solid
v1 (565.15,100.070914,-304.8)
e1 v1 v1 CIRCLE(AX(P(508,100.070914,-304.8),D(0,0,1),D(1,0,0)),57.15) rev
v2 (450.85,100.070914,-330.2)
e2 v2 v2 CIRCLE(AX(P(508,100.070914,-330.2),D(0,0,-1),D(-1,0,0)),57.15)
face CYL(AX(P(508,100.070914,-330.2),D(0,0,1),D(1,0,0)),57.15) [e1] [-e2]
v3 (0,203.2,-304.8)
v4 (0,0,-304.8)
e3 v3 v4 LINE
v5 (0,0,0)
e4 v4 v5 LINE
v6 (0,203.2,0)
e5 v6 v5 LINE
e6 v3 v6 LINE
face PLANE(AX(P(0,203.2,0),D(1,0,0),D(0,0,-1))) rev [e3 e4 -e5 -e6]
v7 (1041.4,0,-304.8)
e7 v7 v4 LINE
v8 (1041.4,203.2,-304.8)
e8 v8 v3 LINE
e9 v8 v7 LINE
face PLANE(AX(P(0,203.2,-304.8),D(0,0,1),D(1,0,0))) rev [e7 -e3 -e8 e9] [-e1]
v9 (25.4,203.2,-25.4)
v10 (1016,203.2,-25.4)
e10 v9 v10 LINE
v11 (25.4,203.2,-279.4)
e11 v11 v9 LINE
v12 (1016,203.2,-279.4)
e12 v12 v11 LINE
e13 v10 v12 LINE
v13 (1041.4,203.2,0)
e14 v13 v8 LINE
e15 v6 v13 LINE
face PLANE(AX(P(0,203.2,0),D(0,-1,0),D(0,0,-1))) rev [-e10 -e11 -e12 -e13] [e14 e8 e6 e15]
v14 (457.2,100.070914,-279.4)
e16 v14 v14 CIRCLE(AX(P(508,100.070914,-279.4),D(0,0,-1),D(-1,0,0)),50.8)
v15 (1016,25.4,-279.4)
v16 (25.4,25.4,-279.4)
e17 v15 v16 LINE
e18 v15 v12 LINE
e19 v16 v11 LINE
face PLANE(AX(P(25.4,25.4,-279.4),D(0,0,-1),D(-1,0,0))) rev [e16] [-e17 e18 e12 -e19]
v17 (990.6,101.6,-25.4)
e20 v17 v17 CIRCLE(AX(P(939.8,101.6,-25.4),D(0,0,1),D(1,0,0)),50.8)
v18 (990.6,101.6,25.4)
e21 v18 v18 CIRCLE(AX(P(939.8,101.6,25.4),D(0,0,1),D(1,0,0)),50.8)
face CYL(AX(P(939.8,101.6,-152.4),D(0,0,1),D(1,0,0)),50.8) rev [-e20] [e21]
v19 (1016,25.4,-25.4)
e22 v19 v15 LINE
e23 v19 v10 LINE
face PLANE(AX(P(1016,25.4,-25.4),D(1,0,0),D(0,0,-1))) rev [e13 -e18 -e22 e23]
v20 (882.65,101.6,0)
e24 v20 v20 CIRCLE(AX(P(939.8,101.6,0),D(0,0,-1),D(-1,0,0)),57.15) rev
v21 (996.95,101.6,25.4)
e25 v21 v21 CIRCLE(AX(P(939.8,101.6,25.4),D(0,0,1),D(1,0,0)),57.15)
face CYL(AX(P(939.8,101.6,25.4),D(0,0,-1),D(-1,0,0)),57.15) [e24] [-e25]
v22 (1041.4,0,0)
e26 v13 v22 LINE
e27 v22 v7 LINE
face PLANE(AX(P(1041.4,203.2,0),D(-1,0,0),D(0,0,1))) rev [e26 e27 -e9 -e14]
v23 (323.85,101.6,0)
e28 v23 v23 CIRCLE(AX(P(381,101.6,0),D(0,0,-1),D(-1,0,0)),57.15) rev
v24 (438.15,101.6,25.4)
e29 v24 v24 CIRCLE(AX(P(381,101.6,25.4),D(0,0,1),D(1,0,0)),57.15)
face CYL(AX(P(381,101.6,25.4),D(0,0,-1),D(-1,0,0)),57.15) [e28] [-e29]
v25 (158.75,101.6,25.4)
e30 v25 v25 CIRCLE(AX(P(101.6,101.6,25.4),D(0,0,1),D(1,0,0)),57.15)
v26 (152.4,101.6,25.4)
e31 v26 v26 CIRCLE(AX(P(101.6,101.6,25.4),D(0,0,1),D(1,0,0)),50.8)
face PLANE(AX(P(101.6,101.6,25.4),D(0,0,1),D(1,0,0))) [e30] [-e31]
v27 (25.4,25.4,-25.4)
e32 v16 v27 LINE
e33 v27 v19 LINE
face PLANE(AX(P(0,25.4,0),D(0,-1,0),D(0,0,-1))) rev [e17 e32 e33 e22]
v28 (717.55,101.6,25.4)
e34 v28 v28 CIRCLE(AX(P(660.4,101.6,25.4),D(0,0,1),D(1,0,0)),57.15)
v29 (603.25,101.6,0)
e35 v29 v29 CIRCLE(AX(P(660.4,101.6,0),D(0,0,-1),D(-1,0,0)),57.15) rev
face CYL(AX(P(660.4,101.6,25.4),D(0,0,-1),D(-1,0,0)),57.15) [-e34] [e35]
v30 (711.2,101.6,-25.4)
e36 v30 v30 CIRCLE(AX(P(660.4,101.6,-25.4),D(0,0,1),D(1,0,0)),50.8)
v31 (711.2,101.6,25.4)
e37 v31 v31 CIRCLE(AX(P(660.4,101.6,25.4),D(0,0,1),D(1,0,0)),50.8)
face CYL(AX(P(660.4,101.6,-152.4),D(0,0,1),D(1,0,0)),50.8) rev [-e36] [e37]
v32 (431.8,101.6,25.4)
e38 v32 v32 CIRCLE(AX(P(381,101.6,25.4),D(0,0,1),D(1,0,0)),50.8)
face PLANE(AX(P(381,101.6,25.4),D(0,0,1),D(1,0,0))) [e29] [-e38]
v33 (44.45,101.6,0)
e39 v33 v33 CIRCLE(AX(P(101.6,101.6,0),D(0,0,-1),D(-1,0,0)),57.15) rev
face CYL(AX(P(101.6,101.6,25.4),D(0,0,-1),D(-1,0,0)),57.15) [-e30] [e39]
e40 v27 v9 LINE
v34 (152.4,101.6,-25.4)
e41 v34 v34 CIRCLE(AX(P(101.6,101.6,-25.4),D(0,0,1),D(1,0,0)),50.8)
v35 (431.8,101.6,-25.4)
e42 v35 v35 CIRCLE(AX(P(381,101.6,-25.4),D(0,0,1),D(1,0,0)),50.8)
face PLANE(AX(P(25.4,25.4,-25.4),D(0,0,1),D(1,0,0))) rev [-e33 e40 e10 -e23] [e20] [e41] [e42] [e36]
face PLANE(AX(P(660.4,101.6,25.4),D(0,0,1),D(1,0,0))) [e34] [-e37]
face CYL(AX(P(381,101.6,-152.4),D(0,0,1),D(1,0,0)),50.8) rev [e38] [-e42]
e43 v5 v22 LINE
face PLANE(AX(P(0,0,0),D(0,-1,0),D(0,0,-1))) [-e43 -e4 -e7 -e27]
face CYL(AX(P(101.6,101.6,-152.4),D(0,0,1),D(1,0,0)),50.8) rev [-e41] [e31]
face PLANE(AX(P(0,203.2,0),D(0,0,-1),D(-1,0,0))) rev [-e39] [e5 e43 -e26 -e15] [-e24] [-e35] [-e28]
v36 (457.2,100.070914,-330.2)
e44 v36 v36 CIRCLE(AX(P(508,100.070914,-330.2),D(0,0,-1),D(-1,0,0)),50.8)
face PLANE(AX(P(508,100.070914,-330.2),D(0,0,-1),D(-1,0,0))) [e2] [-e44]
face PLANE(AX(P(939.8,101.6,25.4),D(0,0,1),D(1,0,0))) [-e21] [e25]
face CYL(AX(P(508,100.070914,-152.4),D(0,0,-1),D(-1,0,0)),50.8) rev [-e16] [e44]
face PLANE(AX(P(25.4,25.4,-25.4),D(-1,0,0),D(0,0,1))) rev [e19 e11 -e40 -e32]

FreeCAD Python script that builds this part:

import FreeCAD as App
import Part
import Sketcher
Q = App.Units.Quantity


def add_polygon(sketch, points):
    """Adds a closed chain of lines whose ends are joined by coincident constraints."""
    first, n = sketch.GeometryCount, len(points)
    for a, b in zip(points, points[1:] + points[:1]):
        sketch.addGeometry(Part.LineSegment(App.Vector(*a, 0), App.Vector(*b, 0)), False)
    for i in range(n):
        sketch.addConstraint(Sketcher.Constraint("Coincident", first + i, 2, first + (i + 1) % n, 1))

doc = App.newDocument("Part")
body = doc.addObject("PartDesign::Body", "Body")

# Sketch on XZ plane
sketch1 = body.newObject("Sketcher::SketchObject", "Sketch")
sketch1.AttachmentSupport = (doc.getObject("XZ_Plane"), [""])
sketch1.MapMode = "FlatFace"
add_polygon(sketch1, [(0, -305), (0, 0), (1041, 0), (1041, -305)])  # lines 0-3
sketch1.addConstraint(Sketcher.Constraint("Vertical", 0))
sketch1.addConstraint(Sketcher.Constraint("Horizontal", 1))
sketch1.addConstraint(Sketcher.Constraint("Vertical", 2))
sketch1.addConstraint(Sketcher.Constraint("Horizontal", 3))
sketch1.addConstraint(Sketcher.Constraint("Coincident", 0, 2, -1, 1))
sketch1.addConstraint(Sketcher.Constraint("DistanceX", 1, 1, 1, 2, Q("41 in")))
sketch1.addConstraint(Sketcher.Constraint("DistanceY", 0, 1, 0, 2, Q("12 in")))
pad1 = body.newObject("PartDesign::Pad", "Pad")
pad1.Profile = sketch1
pad1.Length = Q("8 in")
pad1.Reversed = True

# Sketch on XY plane
sketch2 = body.newObject("Sketcher::SketchObject", "Sketch001")
sketch2.AttachmentSupport = (doc.getObject("XY_Plane"), [""])
sketch2.MapMode = "FlatFace"
sketch2.addGeometry(Part.Circle(App.Vector(102, 102, 0), App.Vector(0, 0, 1), 57), False)
sketch2.addGeometry(Part.Circle(App.Vector(381, 102, 0), App.Vector(0, 0, 1), 57), False)
sketch2.addGeometry(Part.Circle(App.Vector(660, 102, 0), App.Vector(0, 0, 1), 57), False)
sketch2.addGeometry(Part.Circle(App.Vector(940, 102, 0), App.Vector(0, 0, 1), 57), False)
sketch2.addConstraint(Sketcher.Constraint("Equal", 0, 1))
sketch2.addConstraint(Sketcher.Constraint("Equal", 1, 2))
sketch2.addConstraint(Sketcher.Constraint("Equal", 2, 3))
sketch2.addConstraint(Sketcher.Constraint("Horizontal", 0, 3, 1, 3))
sketch2.addConstraint(Sketcher.Constraint("Horizontal", 1, 3, 2, 3))
sketch2.addConstraint(Sketcher.Constraint("Horizontal", 2, 3, 3, 3))
sketch2.addConstraint(Sketcher.Constraint("Diameter", 0, Q("4.5 in")))
sketch2.addConstraint(Sketcher.Constraint("DistanceX", -1, 1, 0, 3, Q("4 in")))
sketch2.addConstraint(Sketcher.Constraint("DistanceY", -1, 1, 0, 3, Q("4 in")))
sketch2.addConstraint(Sketcher.Constraint("DistanceX", -1, 1, 1, 3, Q("15 in")))
sketch2.addConstraint(Sketcher.Constraint("DistanceX", -1, 1, 2, 3, Q("26 in")))
sketch2.addConstraint(Sketcher.Constraint("DistanceX", -1, 1, 3, 3, Q("37 in")))
pad2 = body.newObject("PartDesign::Pad", "Pad001")
pad2.Profile = sketch2
pad2.Length = Q("1 in")

# Sketch on XY plane
sketch3 = body.newObject("Sketcher::SketchObject", "Sketch002")
sketch3.AttachmentSupport = (doc.getObject("XY_Plane"), [""])
sketch3.MapMode = "FlatFace"
sketch3.AttachmentOffset = App.Placement(App.Vector(0, 0, -12 * 25.4), App.Rotation())
sketch3.addGeometry(Part.Circle(App.Vector(508, 100, 0), App.Vector(0, 0, 1), 57), False)
sketch3.addConstraint(Sketcher.Constraint("Diameter", 0, Q("4.5 in")))
sketch3.addConstraint(Sketcher.Constraint("DistanceX", -1, 1, 0, 3, Q("20 in")))
sketch3.addConstraint(Sketcher.Constraint("DistanceY", -1, 1, 0, 3, Q("100.070914 mm")))
pad3 = body.newObject("PartDesign::Pad", "Pad002")
pad3.Profile = sketch3
pad3.Length = Q("1 in")
pad3.Reversed = True

# Sketch on XZ plane
sketch4 = body.newObject("Sketcher::SketchObject", "Sketch003")
sketch4.AttachmentSupport = (doc.getObject("XZ_Plane"), [""])
sketch4.MapMode = "FlatFace"
sketch4.AttachmentOffset = App.Placement(App.Vector(0, 0, -8 * 25.4), App.Rotation())
add_polygon(sketch4, [(25, -279), (25, -25), (1016, -25), (1016, -279)])  # lines 0-3
sketch4.addConstraint(Sketcher.Constraint("Vertical", 0))
sketch4.addConstraint(Sketcher.Constraint("Horizontal", 1))
sketch4.addConstraint(Sketcher.Constraint("Vertical", 2))
sketch4.addConstraint(Sketcher.Constraint("Horizontal", 3))
sketch4.addConstraint(Sketcher.Constraint("DistanceX", 1, 1, 1, 2, Q("39 in")))
sketch4.addConstraint(Sketcher.Constraint("DistanceY", 0, 1, 0, 2, Q("10 in")))
sketch4.addConstraint(Sketcher.Constraint("DistanceX", -1, 1, 0, 2, Q("1 in")))
sketch4.addConstraint(Sketcher.Constraint("DistanceY", 0, 2, -1, 1, Q("1 in")))
pocket1 = body.newObject("PartDesign::Pocket", "Pocket")
pocket1.Profile = sketch4
pocket1.Length = Q("7 in")
pocket1.Reversed = True

# Sketch on XY plane
sketch5 = body.newObject("Sketcher::SketchObject", "Sketch004")
sketch5.AttachmentSupport = (doc.getObject("XY_Plane"), [""])
sketch5.MapMode = "FlatFace"
sketch5.AttachmentOffset = App.Placement(App.Vector(0, 0, 1 * 25.4), App.Rotation())
sketch5.addGeometry(Part.Circle(App.Vector(102, 102, 0), App.Vector(0, 0, 1), 51), False)
sketch5.addGeometry(Part.Circle(App.Vector(381, 102, 0), App.Vector(0, 0, 1), 51), False)
sketch5.addGeometry(Part.Circle(App.Vector(660, 102, 0), App.Vector(0, 0, 1), 51), False)
sketch5.addGeometry(Part.Circle(App.Vector(940, 102, 0), App.Vector(0, 0, 1), 51), False)
sketch5.addConstraint(Sketcher.Constraint("Equal", 0, 1))
sketch5.addConstraint(Sketcher.Constraint("Equal", 1, 2))
sketch5.addConstraint(Sketcher.Constraint("Equal", 2, 3))
sketch5.addConstraint(Sketcher.Constraint("Horizontal", 0, 3, 1, 3))
sketch5.addConstraint(Sketcher.Constraint("Horizontal", 1, 3, 2, 3))
sketch5.addConstraint(Sketcher.Constraint("Horizontal", 2, 3, 3, 3))
sketch5.addConstraint(Sketcher.Constraint("Diameter", 0, Q("4 in")))
sketch5.addConstraint(Sketcher.Constraint("DistanceX", -1, 1, 0, 3, Q("4 in")))
sketch5.addConstraint(Sketcher.Constraint("DistanceY", -1, 1, 0, 3, Q("4 in")))
sketch5.addConstraint(Sketcher.Constraint("DistanceX", -1, 1, 1, 3, Q("15 in")))
sketch5.addConstraint(Sketcher.Constraint("DistanceX", -1, 1, 2, 3, Q("26 in")))
sketch5.addConstraint(Sketcher.Constraint("DistanceX", -1, 1, 3, 3, Q("37 in")))
pocket2 = body.newObject("PartDesign::Pocket", "Pocket001")
pocket2.Profile = sketch5
pocket2.Length = Q("7 in")

# Sketch on XY plane
sketch6 = body.newObject("Sketcher::SketchObject", "Sketch005")
sketch6.AttachmentSupport = (doc.getObject("XY_Plane"), [""])
sketch6.MapMode = "FlatFace"
sketch6.AttachmentOffset = App.Placement(App.Vector(0, 0, -13 * 25.4), App.Rotation())
sketch6.addGeometry(Part.Circle(App.Vector(508, 100, 0), App.Vector(0, 0, 1), 51), False)
sketch6.addConstraint(Sketcher.Constraint("Diameter", 0, Q("4 in")))
sketch6.addConstraint(Sketcher.Constraint("DistanceX", -1, 1, 0, 3, Q("20 in")))
sketch6.addConstraint(Sketcher.Constraint("DistanceY", -1, 1, 0, 3, Q("100.070914 mm")))
pocket3 = body.newObject("PartDesign::Pocket", "Pocket002")
pocket3.Profile = sketch6
pocket3.Length = Q("7 in")
pocket3.Reversed = True

doc.recompute()
